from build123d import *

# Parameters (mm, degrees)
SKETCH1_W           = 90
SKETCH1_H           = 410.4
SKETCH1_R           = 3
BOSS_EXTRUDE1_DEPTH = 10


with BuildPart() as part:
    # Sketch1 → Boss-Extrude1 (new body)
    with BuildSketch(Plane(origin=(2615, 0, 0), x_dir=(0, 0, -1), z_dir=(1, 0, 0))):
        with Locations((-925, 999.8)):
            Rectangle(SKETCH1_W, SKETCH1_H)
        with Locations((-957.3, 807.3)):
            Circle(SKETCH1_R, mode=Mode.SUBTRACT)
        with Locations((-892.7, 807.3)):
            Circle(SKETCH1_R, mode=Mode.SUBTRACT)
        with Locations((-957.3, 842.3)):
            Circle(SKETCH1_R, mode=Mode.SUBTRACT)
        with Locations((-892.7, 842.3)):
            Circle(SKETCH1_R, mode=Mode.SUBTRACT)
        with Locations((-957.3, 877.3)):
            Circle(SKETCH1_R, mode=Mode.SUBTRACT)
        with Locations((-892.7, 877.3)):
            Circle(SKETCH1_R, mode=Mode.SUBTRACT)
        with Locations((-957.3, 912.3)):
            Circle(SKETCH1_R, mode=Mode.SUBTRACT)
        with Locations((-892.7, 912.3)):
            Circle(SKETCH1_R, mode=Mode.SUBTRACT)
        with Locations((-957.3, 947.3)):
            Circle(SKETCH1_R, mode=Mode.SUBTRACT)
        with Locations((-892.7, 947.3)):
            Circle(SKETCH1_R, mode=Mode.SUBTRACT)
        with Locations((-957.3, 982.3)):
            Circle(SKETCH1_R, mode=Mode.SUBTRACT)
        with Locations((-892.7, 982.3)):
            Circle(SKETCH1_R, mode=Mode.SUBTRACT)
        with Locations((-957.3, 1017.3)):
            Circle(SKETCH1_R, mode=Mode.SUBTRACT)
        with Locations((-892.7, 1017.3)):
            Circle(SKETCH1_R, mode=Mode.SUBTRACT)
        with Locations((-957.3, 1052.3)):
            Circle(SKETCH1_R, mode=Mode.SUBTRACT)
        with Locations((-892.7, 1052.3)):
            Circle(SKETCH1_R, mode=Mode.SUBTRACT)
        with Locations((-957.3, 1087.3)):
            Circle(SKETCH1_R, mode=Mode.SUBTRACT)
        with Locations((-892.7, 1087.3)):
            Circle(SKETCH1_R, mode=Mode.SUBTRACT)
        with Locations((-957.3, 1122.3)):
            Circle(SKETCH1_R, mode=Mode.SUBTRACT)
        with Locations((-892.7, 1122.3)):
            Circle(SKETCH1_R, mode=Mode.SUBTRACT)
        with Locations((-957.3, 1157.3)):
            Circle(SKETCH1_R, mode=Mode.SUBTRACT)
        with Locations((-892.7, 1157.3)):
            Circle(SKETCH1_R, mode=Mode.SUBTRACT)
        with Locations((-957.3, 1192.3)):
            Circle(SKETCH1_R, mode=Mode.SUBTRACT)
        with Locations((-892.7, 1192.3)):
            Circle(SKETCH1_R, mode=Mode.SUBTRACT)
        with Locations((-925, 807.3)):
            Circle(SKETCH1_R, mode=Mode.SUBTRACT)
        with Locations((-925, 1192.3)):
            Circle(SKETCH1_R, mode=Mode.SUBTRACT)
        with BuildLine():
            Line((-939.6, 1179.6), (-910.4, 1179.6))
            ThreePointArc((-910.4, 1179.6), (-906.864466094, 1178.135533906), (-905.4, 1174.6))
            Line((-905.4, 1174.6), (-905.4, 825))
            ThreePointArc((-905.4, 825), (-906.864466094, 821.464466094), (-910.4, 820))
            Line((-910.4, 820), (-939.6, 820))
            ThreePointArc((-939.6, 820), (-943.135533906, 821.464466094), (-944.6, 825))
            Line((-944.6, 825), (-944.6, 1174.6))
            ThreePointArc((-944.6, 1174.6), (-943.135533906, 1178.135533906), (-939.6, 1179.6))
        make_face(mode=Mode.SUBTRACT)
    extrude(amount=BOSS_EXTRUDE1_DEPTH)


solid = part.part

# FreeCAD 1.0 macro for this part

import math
import FreeCAD as App
import Part
import Sketcher

V = App.Vector


def add_polygon(sketch, points):
    """Adds a closed chain of lines whose ends are joined by coincident constraints."""
    first, n = sketch.GeometryCount, len(points)
    for a, b in zip(points, points[1:] + points[:1]):
        sketch.addGeometry(Part.LineSegment(App.Vector(*a, 0), App.Vector(*b, 0)), False)
    for i in range(n):
        sketch.addConstraint(Sketcher.Constraint("Coincident", first + i, 2, first + (i + 1) % n, 1))

doc = App.newDocument("Part")
params = doc.addObject("Spreadsheet::Sheet", "Params")
for row, (alias, value) in enumerate([
    ("sketch1_diameter", "6 mm"),
    ("sketch1_radius", "5 mm"),
    ("sketch1_height", "90 mm"),
    ("sketch1_width", "410.4 mm"),
    ("sketch1_width2", "349.6 mm"),
    ("pad1_length", "10 mm"),
], start=1):
    params.set(f"A{row}", alias)
    params.set(f"B{row}", "=" + value)
    params.setAlias(f"B{row}", alias)

body = doc.addObject("PartDesign::Body", "Body")

# Sketch on YZ plane
sketch1 = body.newObject("Sketcher::SketchObject", "Sketch")
sketch1.AttachmentSupport = (doc.getObject("YZ_Plane"), [""])
sketch1.MapMode = "FlatFace"
sketch1.AttachmentOffset = App.Placement(V(0, 0, 2615), App.Rotation())
add_polygon(sketch1, [(1205, 970), (794.6, 970), (794.6, 880), (1205, 880)])  # lines 0-3
sketch1.addGeometry(Part.Circle(V(807.3, 957.3, 0), V(0, 0, 1), 3), False)  # 4
sketch1.addGeometry(Part.Circle(V(842.3, 957.3, 0), V(0, 0, 1), 3), False)  # 5
sketch1.addGeometry(Part.Circle(V(877.3, 957.3, 0), V(0, 0, 1), 3), False)  # 6
sketch1.addGeometry(Part.Circle(V(912.3, 957.3, 0), V(0, 0, 1), 3), False)  # 7
sketch1.addGeometry(Part.Circle(V(947.3, 957.3, 0), V(0, 0, 1), 3), False)  # 8
sketch1.addGeometry(Part.Circle(V(982.3, 957.3, 0), V(0, 0, 1), 3), False)  # 9
sketch1.addGeometry(Part.Circle(V(807.3, 925, 0), V(0, 0, 1), 3), False)  # 10
sketch1.addGeometry(Part.Circle(V(807.3, 892.7, 0), V(0, 0, 1), 3), False)  # 11
sketch1.addGeometry(Part.Circle(V(842.3, 892.7, 0), V(0, 0, 1), 3), False)  # 12
sketch1.addGeometry(Part.Circle(V(877.3, 892.7, 0), V(0, 0, 1), 3), False)  # 13
sketch1.addGeometry(Part.Circle(V(912.3, 892.7, 0), V(0, 0, 1), 3), False)  # 14
sketch1.addGeometry(Part.Circle(V(947.3, 892.7, 0), V(0, 0, 1), 3), False)  # 15
sketch1.addGeometry(Part.Circle(V(982.3, 892.7, 0), V(0, 0, 1), 3), False)  # 16
sketch1.addGeometry(Part.Circle(V(1017.3, 957.3, 0), V(0, 0, 1), 3), False)  # 17
sketch1.addGeometry(Part.Circle(V(1052.3, 957.3, 0), V(0, 0, 1), 3), False)  # 18
sketch1.addGeometry(Part.Circle(V(1087.3, 957.3, 0), V(0, 0, 1), 3), False)  # 19
sketch1.addGeometry(Part.Circle(V(1122.3, 957.3, 0), V(0, 0, 1), 3), False)  # 20
sketch1.addGeometry(Part.Circle(V(1157.3, 957.3, 0), V(0, 0, 1), 3), False)  # 21
sketch1.addGeometry(Part.Circle(V(1192.3, 957.3, 0), V(0, 0, 1), 3), False)  # 22
sketch1.addGeometry(Part.ArcOfCircle(Part.Circle(V(1174.6, 939.6, 0), V(0, 0, 1), 5), math.radians(0), math.radians(90)), False)  # 23
sketch1.addGeometry(Part.LineSegment(V(1179.6, 939.6, 0), V(1179.6, 910.4, 0)), False)  # 24
sketch1.addGeometry(Part.ArcOfCircle(Part.Circle(V(1174.6, 910.4, 0), V(0, 0, 1), 5), math.radians(-90), math.radians(0)), False)  # 25
sketch1.addGeometry(Part.LineSegment(V(1174.6, 905.4, 0), V(825, 905.4, 0)), False)  # 26
sketch1.addGeometry(Part.ArcOfCircle(Part.Circle(V(825, 910.4, 0), V(0, 0, 1), 5), math.radians(180), math.radians(270)), False)  # 27
sketch1.addGeometry(Part.LineSegment(V(820, 910.4, 0), V(820, 939.6, 0)), False)  # 28
sketch1.addGeometry(Part.ArcOfCircle(Part.Circle(V(825, 939.6, 0), V(0, 0, 1), 5), math.radians(90), math.radians(180)), False)  # 29
sketch1.addGeometry(Part.LineSegment(V(825, 944.6, 0), V(1174.6, 944.6, 0)), False)  # 30
sketch1.addGeometry(Part.Circle(V(1017.3, 892.7, 0), V(0, 0, 1), 3), False)  # 31
sketch1.addGeometry(Part.Circle(V(1052.3, 892.7, 0), V(0, 0, 1), 3), False)  # 32
sketch1.addGeometry(Part.Circle(V(1087.3, 892.7, 0), V(0, 0, 1), 3), False)  # 33
sketch1.addGeometry(Part.Circle(V(1192.3, 925, 0), V(0, 0, 1), 3), False)  # 34
sketch1.addGeometry(Part.Circle(V(1122.3, 892.7, 0), V(0, 0, 1), 3), False)  # 35
sketch1.addGeometry(Part.Circle(V(1157.3, 892.7, 0), V(0, 0, 1), 3), False)  # 36
sketch1.addGeometry(Part.Circle(V(1192.3, 892.7, 0), V(0, 0, 1), 3), False)  # 37
sketch1.addConstraint([
    Sketcher.Constraint("Tangent", 23, 1, 24, 1),
    Sketcher.Constraint("Tangent", 24, 2, 25, 2),
    Sketcher.Constraint("Tangent", 25, 1, 26, 1),
    Sketcher.Constraint("Tangent", 26, 2, 27, 2),
    Sketcher.Constraint("Tangent", 27, 1, 28, 1),
    Sketcher.Constraint("Tangent", 28, 2, 29, 2),
    Sketcher.Constraint("Tangent", 29, 1, 30, 1),
    Sketcher.Constraint("Tangent", 30, 2, 23, 2),
    Sketcher.Constraint("Horizontal", 0),
    Sketcher.Constraint("Vertical", 1),
    Sketcher.Constraint("Horizontal", 2),
    Sketcher.Constraint("Vertical", 3),
    Sketcher.Constraint("Vertical", 24),
    Sketcher.Constraint("Horizontal", 26),
    Sketcher.Constraint("Vertical", 28),
    Sketcher.Constraint("Horizontal", 30),
    Sketcher.Constraint("Equal", 4, 5),
    Sketcher.Constraint("Equal", 5, 6),
    Sketcher.Constraint("Equal", 6, 7),
    Sketcher.Constraint("Equal", 7, 8),
    Sketcher.Constraint("Equal", 8, 9),
    Sketcher.Constraint("Equal", 9, 10),
    Sketcher.Constraint("Equal", 10, 11),
    Sketcher.Constraint("Equal", 11, 12),
    Sketcher.Constraint("Equal", 12, 13),
    Sketcher.Constraint("Equal", 13, 14),
    Sketcher.Constraint("Equal", 14, 15),
    Sketcher.Constraint("Equal", 15, 16),
    Sketcher.Constraint("Equal", 16, 17),
    Sketcher.Constraint("Equal", 17, 18),
    Sketcher.Constraint("Equal", 18, 19),
    Sketcher.Constraint("Equal", 19, 20),
    Sketcher.Constraint("Equal", 20, 21),
    Sketcher.Constraint("Equal", 21, 22),
    Sketcher.Constraint("Equal", 23, 25),
    Sketcher.Constraint("Equal", 25, 27),
    Sketcher.Constraint("Equal", 27, 29),
    Sketcher.Constraint("Equal", 22, 31),
    Sketcher.Constraint("Equal", 31, 32),
    Sketcher.Constraint("Equal", 32, 33),
    Sketcher.Constraint("Equal", 33, 34),
    Sketcher.Constraint("Equal", 34, 35),
    Sketcher.Constraint("Equal", 35, 36),
    Sketcher.Constraint("Equal", 36, 37),
    Sketcher.Constraint("Horizontal", 4, 3, 5, 3),
    Sketcher.Constraint("Horizontal", 5, 3, 6, 3),
    Sketcher.Constraint("Horizontal", 6, 3, 7, 3),
    Sketcher.Constraint("Horizontal", 7, 3, 8, 3),
    Sketcher.Constraint("Horizontal", 8, 3, 9, 3),
    Sketcher.Constraint("Horizontal", 11, 3, 12, 3),
    Sketcher.Constraint("Horizontal", 12, 3, 13, 3),
    Sketcher.Constraint("Horizontal", 13, 3, 14, 3),
    Sketcher.Constraint("Horizontal", 14, 3, 15, 3),
    Sketcher.Constraint("Horizontal", 15, 3, 16, 3),
    Sketcher.Constraint("Horizontal", 9, 3, 17, 3),
    Sketcher.Constraint("Horizontal", 17, 3, 18, 3),
    Sketcher.Constraint("Horizontal", 18, 3, 19, 3),
    Sketcher.Constraint("Horizontal", 19, 3, 20, 3),
    Sketcher.Constraint("Horizontal", 20, 3, 21, 3),
    Sketcher.Constraint("Horizontal", 21, 3, 22, 3),
    Sketcher.Constraint("Horizontal", 16, 3, 31, 3),
    Sketcher.Constraint("Horizontal", 31, 3, 32, 3),
    Sketcher.Constraint("Horizontal", 32, 3, 33, 3),
    Sketcher.Constraint("Horizontal", 10, 3, 34, 3),
    Sketcher.Constraint("Horizontal", 33, 3, 35, 3),
    Sketcher.Constraint("Horizontal", 35, 3, 36, 3),
    Sketcher.Constraint("Horizontal", 36, 3, 37, 3),
    Sketcher.Constraint("Vertical", 4, 3, 10, 3),
    Sketcher.Constraint("Vertical", 10, 3, 11, 3),
    Sketcher.Constraint("Vertical", 5, 3, 12, 3),
    Sketcher.Constraint("Vertical", 6, 3, 13, 3),
    Sketcher.Constraint("Vertical", 7, 3, 14, 3),
    Sketcher.Constraint("Vertical", 8, 3, 15, 3),
    Sketcher.Constraint("Vertical", 9, 3, 16, 3),
    Sketcher.Constraint("Vertical", 17, 3, 31, 3),
    Sketcher.Constraint("Vertical", 18, 3, 32, 3),
    Sketcher.Constraint("Vertical", 19, 3, 33, 3),
    Sketcher.Constraint("Vertical", 22, 3, 34, 3),
    Sketcher.Constraint("Vertical", 20, 3, 35, 3),
    Sketcher.Constraint("Vertical", 21, 3, 36, 3),
    Sketcher.Constraint("Vertical", 34, 3, 37, 3),
    Sketcher.Constraint("Diameter", 4, 6.0),
    Sketcher.Constraint("Radius", 23, 5.0),
    Sketcher.Constraint("DistanceY", 1, 2, 1, 1, 90.0),
    Sketcher.Constraint("DistanceX", 0, 2, 0, 1, 410.4),
    Sketcher.Constraint("DistanceX", 26, 2, 26, 1, 349.6),
    Sketcher.Constraint("DistanceY", 24, 2, 24, 1, 29.2),
    Sketcher.Constraint("DistanceY", -1, 1, 10, 3, 925.0),
    Sketcher.Constraint("DistanceX", -1, 1, 27, 3, 825.0),
    Sketcher.Constraint("DistanceY", -1, 1, 0, 2, 970.0),
    Sketcher.Constraint("DistanceX", -1, 1, 2, 2, 1205.0),
    Sketcher.Constraint("DistanceX", 4, 3, 5, 3, 35.0),
    Sketcher.Constraint("DistanceX", 5, 3, 6, 3, 35.0),
    Sketcher.Constraint("DistanceX", 6, 3, 7, 3, 35.0),
    Sketcher.Constraint("DistanceX", 7, 3, 8, 3, 35.0),
    Sketcher.Constraint("DistanceX", 8, 3, 9, 3, 35.0),
    Sketcher.Constraint("DistanceX", 9, 3, 17, 3, 35.0),
    Sketcher.Constraint("DistanceX", 17, 3, 18, 3, 35.0),
    Sketcher.Constraint("DistanceX", 18, 3, 19, 3, 35.0),
    Sketcher.Constraint("DistanceX", 19, 3, 20, 3, 35.0),
    Sketcher.Constraint("DistanceX", 20, 3, 21, 3, 35.0),
    Sketcher.Constraint("DistanceX", 21, 3, 22, 3, 35.0),
    Sketcher.Constraint("DistanceX", -1, 1, 4, 3, 807.3),
    Sketcher.Constraint("DistanceY", -1, 1, 4, 3, 957.3),
    Sketcher.Constraint("DistanceY", -1, 1, 11, 3, 892.7),
    Sketcher.Constraint("DistanceY", -1, 1, 23, 3, 939.6),
])
sketch1.setExpression("Constraints[85]", "Params.sketch1_diameter")
sketch1.setExpression("Constraints[86]", "Params.sketch1_radius")
sketch1.setExpression("Constraints[87]", "Params.sketch1_height")
sketch1.setExpression("Constraints[88]", "Params.sketch1_width")
sketch1.setExpression("Constraints[89]", "Params.sketch1_width2")
pad1 = body.newObject("PartDesign::Pad", "Pad")
pad1.Profile = sketch1
pad1.setExpression("Length", "Params.pad1_length")

doc.recompute()
